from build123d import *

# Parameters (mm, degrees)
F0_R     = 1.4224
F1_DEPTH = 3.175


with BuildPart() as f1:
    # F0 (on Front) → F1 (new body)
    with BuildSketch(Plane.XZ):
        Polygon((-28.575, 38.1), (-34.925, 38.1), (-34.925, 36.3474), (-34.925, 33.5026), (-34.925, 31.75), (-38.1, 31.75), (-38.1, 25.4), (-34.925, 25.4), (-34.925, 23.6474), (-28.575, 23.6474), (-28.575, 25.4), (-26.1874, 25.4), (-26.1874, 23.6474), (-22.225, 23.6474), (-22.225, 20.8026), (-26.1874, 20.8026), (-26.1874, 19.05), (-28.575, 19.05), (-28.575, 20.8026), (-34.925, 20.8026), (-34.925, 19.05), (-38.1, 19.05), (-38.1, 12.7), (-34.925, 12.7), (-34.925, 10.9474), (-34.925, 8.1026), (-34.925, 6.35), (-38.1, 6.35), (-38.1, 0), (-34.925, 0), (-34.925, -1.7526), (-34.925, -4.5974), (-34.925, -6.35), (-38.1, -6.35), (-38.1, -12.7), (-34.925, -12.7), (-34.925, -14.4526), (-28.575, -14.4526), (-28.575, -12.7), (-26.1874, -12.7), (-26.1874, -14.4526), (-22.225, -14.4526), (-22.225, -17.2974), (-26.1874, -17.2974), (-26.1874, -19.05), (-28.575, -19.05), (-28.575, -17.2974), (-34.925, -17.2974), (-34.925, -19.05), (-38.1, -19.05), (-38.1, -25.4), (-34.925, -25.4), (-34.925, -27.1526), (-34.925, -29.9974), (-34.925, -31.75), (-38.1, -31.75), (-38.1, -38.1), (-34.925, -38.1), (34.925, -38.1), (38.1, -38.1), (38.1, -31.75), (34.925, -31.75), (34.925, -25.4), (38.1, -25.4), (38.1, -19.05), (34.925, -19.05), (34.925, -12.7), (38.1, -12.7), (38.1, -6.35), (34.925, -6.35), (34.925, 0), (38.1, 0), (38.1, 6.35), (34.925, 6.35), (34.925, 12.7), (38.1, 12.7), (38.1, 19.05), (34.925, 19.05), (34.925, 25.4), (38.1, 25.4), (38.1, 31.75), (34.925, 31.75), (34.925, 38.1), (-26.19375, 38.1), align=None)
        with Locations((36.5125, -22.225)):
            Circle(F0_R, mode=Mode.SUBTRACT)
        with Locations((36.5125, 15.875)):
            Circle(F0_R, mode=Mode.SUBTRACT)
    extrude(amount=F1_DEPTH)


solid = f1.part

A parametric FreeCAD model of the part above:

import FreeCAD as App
import Part
import Sketcher
from FreeCAD import Vector
Q = App.Units.Quantity


def add_polygon(sketch, points):
    """Adds a closed chain of lines whose ends are joined by coincident constraints."""
    first, n = sketch.GeometryCount, len(points)
    for a, b in zip(points, points[1:] + points[:1]):
        sketch.addGeometry(Part.LineSegment(App.Vector(*a, 0), App.Vector(*b, 0)), False)
    for i in range(n):
        sketch.addConstraint(Sketcher.Constraint("Coincident", first + i, 2, first + (i + 1) % n, 1))

doc = App.newDocument("Part")
body = doc.addObject("PartDesign::Body", "Body")

# Sketch on XZ plane
sketch1 = body.newObject("Sketcher::SketchObject", "Sketch")
sketch1.AttachmentSupport = (doc.getObject("XZ_Plane"), [""])
sketch1.MapMode = "FlatFace"
add_polygon(sketch1, [(-34.9, 38.1), (-34.9, 31.8), (-38.1, 31.8), (-38.1, 25.4), (-34.9, 25.4), (-34.9, 23.6), (-28.6, 23.6), (-28.6, 25.4), (-26.2, 25.4), (-26.2, 23.6), (-22.2, 23.6), (-22.2, 20.8), (-26.2, 20.8), (-26.2, 19.1), (-28.6, 19.1), (-28.6, 20.8), (-34.9, 20.8), (-34.9, 19.1), (-38.1, 19.1), (-38.1, 12.7), (-34.9, 12.7), (-34.9, 6.3), (-38.1, 6.3), (-38.1, 0), (-34.9, 0), (-34.9, -6.3), (-38.1, -6.3), (-38.1, -12.7), (-34.9, -12.7), (-34.9, -14.5), (-28.6, -14.5), (-28.6, -12.7), (-26.2, -12.7), (-26.2, -14.5), (-22.2, -14.5), (-22.2, -17.3), (-26.2, -17.3), (-26.2, -19.1), (-28.6, -19.1), (-28.6, -17.3), (-34.9, -17.3), (-34.9, -19.1), (-38.1, -19.1), (-38.1, -25.4), (-34.9, -25.4), (-34.9, -31.8), (-38.1, -31.8), (-38.1, -38.1), (38.1, -38.1), (38.1, -31.8), (34.9, -31.8), (34.9, -25.4), (38.1, -25.4), (38.1, -19.1), (34.9, -19.1), (34.9, -12.7), (38.1, -12.7), (38.1, -6.3), (34.9, -6.3), (34.9, 0), (38.1, 0), (38.1, 6.3), (34.9, 6.3), (34.9, 12.7), (38.1, 12.7), (38.1, 19.1), (34.9, 19.1), (34.9, 25.4), (38.1, 25.4), (38.1, 31.8), (34.9, 31.8), (34.9, 38.1)])  # lines 0-71
sketch1.addGeometry(Part.Circle(Vector(36.5, -22.2, 0), Vector(0, 0, 1), 1.4), False)  # 72
sketch1.addGeometry(Part.Circle(Vector(36.5, 15.9, 0), Vector(0, 0, 1), 1.4), False)  # 73
sketch1.addConstraint([
    Sketcher.Constraint("Vertical", 0),
    Sketcher.Constraint("Horizontal", 1),
    Sketcher.Constraint("Vertical", 2),
    Sketcher.Constraint("Horizontal", 3),
    Sketcher.Constraint("Vertical", 4),
    Sketcher.Constraint("Horizontal", 5),
    Sketcher.Constraint("Vertical", 6),
    Sketcher.Constraint("Horizontal", 7),
    Sketcher.Constraint("Vertical", 8),
    Sketcher.Constraint("Horizontal", 9),
    Sketcher.Constraint("Vertical", 10),
    Sketcher.Constraint("Horizontal", 11),
    Sketcher.Constraint("Vertical", 12),
    Sketcher.Constraint("Horizontal", 13),
    Sketcher.Constraint("Vertical", 14),
    Sketcher.Constraint("Horizontal", 15),
    Sketcher.Constraint("Vertical", 16),
    Sketcher.Constraint("Horizontal", 17),
    Sketcher.Constraint("Vertical", 18),
    Sketcher.Constraint("Horizontal", 19),
    Sketcher.Constraint("Vertical", 20),
    Sketcher.Constraint("Horizontal", 21),
    Sketcher.Constraint("Vertical", 22),
    Sketcher.Constraint("Horizontal", 23),
    Sketcher.Constraint("Vertical", 24),
    Sketcher.Constraint("Horizontal", 25),
    Sketcher.Constraint("Vertical", 26),
    Sketcher.Constraint("Horizontal", 27),
    Sketcher.Constraint("Vertical", 28),
    Sketcher.Constraint("Horizontal", 29),
    Sketcher.Constraint("Vertical", 30),
    Sketcher.Constraint("Horizontal", 31),
    Sketcher.Constraint("Vertical", 32),
    Sketcher.Constraint("Horizontal", 33),
    Sketcher.Constraint("Vertical", 34),
    Sketcher.Constraint("Horizontal", 35),
    Sketcher.Constraint("Vertical", 36),
    Sketcher.Constraint("Horizontal", 37),
    Sketcher.Constraint("Vertical", 38),
    Sketcher.Constraint("Horizontal", 39),
    Sketcher.Constraint("Vertical", 40),
    Sketcher.Constraint("Horizontal", 41),
    Sketcher.Constraint("Vertical", 42),
    Sketcher.Constraint("Horizontal", 43),
    Sketcher.Constraint("Vertical", 44),
    Sketcher.Constraint("Horizontal", 45),
    Sketcher.Constraint("Vertical", 46),
    Sketcher.Constraint("Horizontal", 47),
    Sketcher.Constraint("Vertical", 48),
    Sketcher.Constraint("Horizontal", 49),
    Sketcher.Constraint("Vertical", 50),
    Sketcher.Constraint("Horizontal", 51),
    Sketcher.Constraint("Vertical", 52),
    Sketcher.Constraint("Horizontal", 53),
    Sketcher.Constraint("Vertical", 54),
    Sketcher.Constraint("Horizontal", 55),
    Sketcher.Constraint("Vertical", 56),
    Sketcher.Constraint("Horizontal", 57),
    Sketcher.Constraint("Vertical", 58),
    Sketcher.Constraint("Horizontal", 59),
    Sketcher.Constraint("Vertical", 60),
    Sketcher.Constraint("Horizontal", 61),
    Sketcher.Constraint("Vertical", 62),
    Sketcher.Constraint("Horizontal", 63),
    Sketcher.Constraint("Vertical", 64),
    Sketcher.Constraint("Horizontal", 65),
    Sketcher.Constraint("Vertical", 66),
    Sketcher.Constraint("Horizontal", 67),
    Sketcher.Constraint("Vertical", 68),
    Sketcher.Constraint("Horizontal", 69),
    Sketcher.Constraint("Vertical", 70),
    Sketcher.Constraint("Horizontal", 71),
    Sketcher.Constraint("Equal", 72, 73),
    Sketcher.Constraint("Symmetric", 1, 2, 48, 2, -1, 1),
    Sketcher.Constraint("Symmetric", 3, 2, 50, 2, -1, 1),
    Sketcher.Constraint("Symmetric", 17, 2, 52, 2, -1, 1),
    Sketcher.Constraint("Symmetric", 19, 2, 54, 2, -1, 1),
    Sketcher.Constraint("Symmetric", 21, 2, 56, 2, -1, 1),
    Sketcher.Constraint("Symmetric", 23, 2, 58, 2, -1, 1),
    Sketcher.Constraint("Symmetric", 25, 2, 60, 2, -1, 1),
    Sketcher.Constraint("Symmetric", 27, 2, 62, 2, -1, 1),
    Sketcher.Constraint("Symmetric", 41, 2, 64, 2, -1, 1),
    Sketcher.Constraint("Symmetric", 43, 2, 66, 2, -1, 1),
    Sketcher.Constraint("Symmetric", 45, 2, 68, 2, -1, 1),
    Sketcher.Constraint("Symmetric", 45, 2, 48, 2, -2),
    Sketcher.Constraint("Symmetric", 43, 2, 50, 2, -2),
    Sketcher.Constraint("Symmetric", 41, 2, 52, 2, -2),
    Sketcher.Constraint("Symmetric", 27, 2, 54, 2, -2),
    Sketcher.Constraint("Symmetric", 25, 2, 56, 2, -2),
    Sketcher.Constraint("Symmetric", 12, 2, 36, 2, -1),
    Sketcher.Constraint("PointOnObject", 22, 2, -1),
    Sketcher.Constraint("Horizontal", 3, 2, 6, 2),
    Sketcher.Constraint("Horizontal", 5, 2, 8, 2),
    Sketcher.Constraint("Horizontal", 11, 2, 14, 2),
    Sketcher.Constraint("Horizontal", 13, 2, 16, 2),
    Sketcher.Constraint("Horizontal", 27, 2, 30, 2),
    Sketcher.Constraint("Horizontal", 29, 2, 32, 2),
    Sketcher.Constraint("Horizontal", 35, 2, 38, 2),
    Sketcher.Constraint("Vertical", 72, 3, 73, 3),
    Sketcher.Constraint("Vertical", 0, 2, 3, 2),
    Sketcher.Constraint("Vertical", 8, 2, 11, 2),
    Sketcher.Constraint("Vertical", 6, 2, 13, 2),
    Sketcher.Constraint("Vertical", 4, 2, 15, 2),
    Sketcher.Constraint("Vertical", 2, 2, 17, 2),
    Sketcher.Constraint("Vertical", 16, 2, 19, 2),
    Sketcher.Constraint("Vertical", 18, 2, 21, 2),
    Sketcher.Constraint("Vertical", 20, 2, 23, 2),
    Sketcher.Constraint("Vertical", 14, 2, 29, 2),
    Sketcher.Constraint("Vertical", 12, 2, 31, 2),
    Sketcher.Constraint("Vertical", 10, 2, 33, 2),
    Sketcher.Constraint("Vertical", 30, 2, 37, 2),
    Sketcher.Constraint("Vertical", 28, 2, 39, 2),
    Sketcher.Constraint("Vertical", 66, 2, 69, 2),
    Sketcher.Constraint("Equal", 39, 0),
    Sketcher.Constraint("Equal", 0, 2),
    Sketcher.Constraint("Equal", 8, 12),
    Sketcher.Constraint("Equal", 2, 18),
    Sketcher.Constraint("Equal", 18, 20),
    Sketcher.Constraint("Equal", 20, 22),
    Sketcher.Constraint("Equal", 16, 28),
    Sketcher.Constraint("Equal", 10, 34),
    Sketcher.Constraint("Equal", 32, 36),
    Sketcher.Constraint("Equal", 44, 46),
    Sketcher.Constraint("DistanceX", 47, 1, 47, 2, Q("3 in")),
    Sketcher.Constraint("Diameter", 72, Q("0.112 in")),
    Sketcher.Constraint("DistanceY", -1, 1, 2, 2, Q("1 in")),
    Sketcher.Constraint("DistanceX", 71, 2, 71, 1, Q("2.75 in")),
    Sketcher.Constraint("DistanceX", 7, 1, 7, 2, Q("0.094 in")),
    Sketcher.Constraint("DistanceX", 9, 1, 9, 2, Q("0.156 in")),
    Sketcher.Constraint("DistanceY", 4, 2, 4, 1, Q("0.069 in")),
    Sketcher.Constraint("DistanceX", -1, 1, 72, 3, Q("1.4375 in")),
    Sketcher.Constraint("DistanceY", 72, 3, -1, 1, Q("0.875 in")),
    Sketcher.Constraint("DistanceY", -1, 1, 73, 3, Q("0.625 in")),
])
pad1 = body.newObject("PartDesign::Pad", "Pad")
pad1.Profile = sketch1
pad1.Length = Q("0.125 in")

doc.recompute()
